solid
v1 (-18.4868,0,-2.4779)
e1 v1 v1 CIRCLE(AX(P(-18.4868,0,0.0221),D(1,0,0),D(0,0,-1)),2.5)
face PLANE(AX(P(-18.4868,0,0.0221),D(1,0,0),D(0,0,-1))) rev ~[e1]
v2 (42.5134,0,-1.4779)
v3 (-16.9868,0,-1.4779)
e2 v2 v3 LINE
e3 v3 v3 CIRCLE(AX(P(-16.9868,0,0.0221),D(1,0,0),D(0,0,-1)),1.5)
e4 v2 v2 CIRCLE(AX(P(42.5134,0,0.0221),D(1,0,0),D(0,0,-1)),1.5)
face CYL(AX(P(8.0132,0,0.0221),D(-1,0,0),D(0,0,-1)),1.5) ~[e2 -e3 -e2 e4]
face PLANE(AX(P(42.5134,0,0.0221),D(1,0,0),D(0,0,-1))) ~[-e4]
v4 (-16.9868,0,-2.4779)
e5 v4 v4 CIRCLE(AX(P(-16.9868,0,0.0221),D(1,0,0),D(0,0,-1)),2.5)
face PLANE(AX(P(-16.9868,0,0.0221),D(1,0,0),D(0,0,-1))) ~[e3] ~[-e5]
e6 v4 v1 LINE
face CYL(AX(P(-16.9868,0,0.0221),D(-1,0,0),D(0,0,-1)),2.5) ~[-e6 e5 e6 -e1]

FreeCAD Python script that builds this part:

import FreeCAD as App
import Part
import Sketcher
from FreeCAD import Vector


def add_polygon(sketch, points):
    """Adds a closed chain of lines whose ends are joined by coincident constraints."""
    first, n = sketch.GeometryCount, len(points)
    for a, b in zip(points, points[1:] + points[:1]):
        sketch.addGeometry(Part.LineSegment(App.Vector(*a, 0), App.Vector(*b, 0)), False)
    for i in range(n):
        sketch.addConstraint(Sketcher.Constraint("Coincident", first + i, 2, first + (i + 1) % n, 1))

doc = App.newDocument("Part")
body = doc.addObject("PartDesign::Body", "Body")

# Sketch on XZ plane
sketch1 = body.newObject("Sketcher::SketchObject", "Sketch")
sketch1.AttachmentSupport = (doc.getObject("XZ_Plane"), [""])
sketch1.MapMode = "FlatFace"
add_polygon(sketch1, [(-17, -1.5), (-17, -2.5), (-18.5, -2.5), (-18.5, 0), (42.5, 0), (42.5, -1.5)])  # lines 0-5
sketch1.addGeometry(Part.LineSegment(Vector(-18.5, 0, 0), Vector(42.5, 0, 0)), True)  # axis
sketch1.addConstraint(Sketcher.Constraint("Vertical", 0))
sketch1.addConstraint(Sketcher.Constraint("Horizontal", 1))
sketch1.addConstraint(Sketcher.Constraint("Vertical", 2))
sketch1.addConstraint(Sketcher.Constraint("Horizontal", 3))
sketch1.addConstraint(Sketcher.Constraint("Vertical", 4))
sketch1.addConstraint(Sketcher.Constraint("Horizontal", 5))
sketch1.addConstraint(Sketcher.Constraint("Horizontal", 6))
sketch1.addConstraint(Sketcher.Constraint("Coincident", 6, 1, 2, 2))
sketch1.addConstraint(Sketcher.Constraint("Vertical", 4, 2, 6, 2))
sketch1.addConstraint(Sketcher.Constraint("Equal", 1, 4))
sketch1.addConstraint(Sketcher.Constraint("DistanceX", 1, 2, 1, 1, 1.5))
sketch1.addConstraint(Sketcher.Constraint("DistanceY", 2, 1, 2, 2, 2.5))
sketch1.addConstraint(Sketcher.Constraint("DistanceX", 3, 1, 3, 2, 61.0002))
sketch1.addConstraint(Sketcher.Constraint("DistanceY", 0, 2, -1, 1, 2.478))
sketch1.addConstraint(Sketcher.Constraint("DistanceX", 0, 2, -1, 1, 16.9868))
revolution = body.newObject("PartDesign::Revolution", "Revolution")
revolution.Profile = sketch1
revolution.ReferenceAxis = (sketch1, ["Axis0"])
revolution.Angle = 360

doc.recompute()
